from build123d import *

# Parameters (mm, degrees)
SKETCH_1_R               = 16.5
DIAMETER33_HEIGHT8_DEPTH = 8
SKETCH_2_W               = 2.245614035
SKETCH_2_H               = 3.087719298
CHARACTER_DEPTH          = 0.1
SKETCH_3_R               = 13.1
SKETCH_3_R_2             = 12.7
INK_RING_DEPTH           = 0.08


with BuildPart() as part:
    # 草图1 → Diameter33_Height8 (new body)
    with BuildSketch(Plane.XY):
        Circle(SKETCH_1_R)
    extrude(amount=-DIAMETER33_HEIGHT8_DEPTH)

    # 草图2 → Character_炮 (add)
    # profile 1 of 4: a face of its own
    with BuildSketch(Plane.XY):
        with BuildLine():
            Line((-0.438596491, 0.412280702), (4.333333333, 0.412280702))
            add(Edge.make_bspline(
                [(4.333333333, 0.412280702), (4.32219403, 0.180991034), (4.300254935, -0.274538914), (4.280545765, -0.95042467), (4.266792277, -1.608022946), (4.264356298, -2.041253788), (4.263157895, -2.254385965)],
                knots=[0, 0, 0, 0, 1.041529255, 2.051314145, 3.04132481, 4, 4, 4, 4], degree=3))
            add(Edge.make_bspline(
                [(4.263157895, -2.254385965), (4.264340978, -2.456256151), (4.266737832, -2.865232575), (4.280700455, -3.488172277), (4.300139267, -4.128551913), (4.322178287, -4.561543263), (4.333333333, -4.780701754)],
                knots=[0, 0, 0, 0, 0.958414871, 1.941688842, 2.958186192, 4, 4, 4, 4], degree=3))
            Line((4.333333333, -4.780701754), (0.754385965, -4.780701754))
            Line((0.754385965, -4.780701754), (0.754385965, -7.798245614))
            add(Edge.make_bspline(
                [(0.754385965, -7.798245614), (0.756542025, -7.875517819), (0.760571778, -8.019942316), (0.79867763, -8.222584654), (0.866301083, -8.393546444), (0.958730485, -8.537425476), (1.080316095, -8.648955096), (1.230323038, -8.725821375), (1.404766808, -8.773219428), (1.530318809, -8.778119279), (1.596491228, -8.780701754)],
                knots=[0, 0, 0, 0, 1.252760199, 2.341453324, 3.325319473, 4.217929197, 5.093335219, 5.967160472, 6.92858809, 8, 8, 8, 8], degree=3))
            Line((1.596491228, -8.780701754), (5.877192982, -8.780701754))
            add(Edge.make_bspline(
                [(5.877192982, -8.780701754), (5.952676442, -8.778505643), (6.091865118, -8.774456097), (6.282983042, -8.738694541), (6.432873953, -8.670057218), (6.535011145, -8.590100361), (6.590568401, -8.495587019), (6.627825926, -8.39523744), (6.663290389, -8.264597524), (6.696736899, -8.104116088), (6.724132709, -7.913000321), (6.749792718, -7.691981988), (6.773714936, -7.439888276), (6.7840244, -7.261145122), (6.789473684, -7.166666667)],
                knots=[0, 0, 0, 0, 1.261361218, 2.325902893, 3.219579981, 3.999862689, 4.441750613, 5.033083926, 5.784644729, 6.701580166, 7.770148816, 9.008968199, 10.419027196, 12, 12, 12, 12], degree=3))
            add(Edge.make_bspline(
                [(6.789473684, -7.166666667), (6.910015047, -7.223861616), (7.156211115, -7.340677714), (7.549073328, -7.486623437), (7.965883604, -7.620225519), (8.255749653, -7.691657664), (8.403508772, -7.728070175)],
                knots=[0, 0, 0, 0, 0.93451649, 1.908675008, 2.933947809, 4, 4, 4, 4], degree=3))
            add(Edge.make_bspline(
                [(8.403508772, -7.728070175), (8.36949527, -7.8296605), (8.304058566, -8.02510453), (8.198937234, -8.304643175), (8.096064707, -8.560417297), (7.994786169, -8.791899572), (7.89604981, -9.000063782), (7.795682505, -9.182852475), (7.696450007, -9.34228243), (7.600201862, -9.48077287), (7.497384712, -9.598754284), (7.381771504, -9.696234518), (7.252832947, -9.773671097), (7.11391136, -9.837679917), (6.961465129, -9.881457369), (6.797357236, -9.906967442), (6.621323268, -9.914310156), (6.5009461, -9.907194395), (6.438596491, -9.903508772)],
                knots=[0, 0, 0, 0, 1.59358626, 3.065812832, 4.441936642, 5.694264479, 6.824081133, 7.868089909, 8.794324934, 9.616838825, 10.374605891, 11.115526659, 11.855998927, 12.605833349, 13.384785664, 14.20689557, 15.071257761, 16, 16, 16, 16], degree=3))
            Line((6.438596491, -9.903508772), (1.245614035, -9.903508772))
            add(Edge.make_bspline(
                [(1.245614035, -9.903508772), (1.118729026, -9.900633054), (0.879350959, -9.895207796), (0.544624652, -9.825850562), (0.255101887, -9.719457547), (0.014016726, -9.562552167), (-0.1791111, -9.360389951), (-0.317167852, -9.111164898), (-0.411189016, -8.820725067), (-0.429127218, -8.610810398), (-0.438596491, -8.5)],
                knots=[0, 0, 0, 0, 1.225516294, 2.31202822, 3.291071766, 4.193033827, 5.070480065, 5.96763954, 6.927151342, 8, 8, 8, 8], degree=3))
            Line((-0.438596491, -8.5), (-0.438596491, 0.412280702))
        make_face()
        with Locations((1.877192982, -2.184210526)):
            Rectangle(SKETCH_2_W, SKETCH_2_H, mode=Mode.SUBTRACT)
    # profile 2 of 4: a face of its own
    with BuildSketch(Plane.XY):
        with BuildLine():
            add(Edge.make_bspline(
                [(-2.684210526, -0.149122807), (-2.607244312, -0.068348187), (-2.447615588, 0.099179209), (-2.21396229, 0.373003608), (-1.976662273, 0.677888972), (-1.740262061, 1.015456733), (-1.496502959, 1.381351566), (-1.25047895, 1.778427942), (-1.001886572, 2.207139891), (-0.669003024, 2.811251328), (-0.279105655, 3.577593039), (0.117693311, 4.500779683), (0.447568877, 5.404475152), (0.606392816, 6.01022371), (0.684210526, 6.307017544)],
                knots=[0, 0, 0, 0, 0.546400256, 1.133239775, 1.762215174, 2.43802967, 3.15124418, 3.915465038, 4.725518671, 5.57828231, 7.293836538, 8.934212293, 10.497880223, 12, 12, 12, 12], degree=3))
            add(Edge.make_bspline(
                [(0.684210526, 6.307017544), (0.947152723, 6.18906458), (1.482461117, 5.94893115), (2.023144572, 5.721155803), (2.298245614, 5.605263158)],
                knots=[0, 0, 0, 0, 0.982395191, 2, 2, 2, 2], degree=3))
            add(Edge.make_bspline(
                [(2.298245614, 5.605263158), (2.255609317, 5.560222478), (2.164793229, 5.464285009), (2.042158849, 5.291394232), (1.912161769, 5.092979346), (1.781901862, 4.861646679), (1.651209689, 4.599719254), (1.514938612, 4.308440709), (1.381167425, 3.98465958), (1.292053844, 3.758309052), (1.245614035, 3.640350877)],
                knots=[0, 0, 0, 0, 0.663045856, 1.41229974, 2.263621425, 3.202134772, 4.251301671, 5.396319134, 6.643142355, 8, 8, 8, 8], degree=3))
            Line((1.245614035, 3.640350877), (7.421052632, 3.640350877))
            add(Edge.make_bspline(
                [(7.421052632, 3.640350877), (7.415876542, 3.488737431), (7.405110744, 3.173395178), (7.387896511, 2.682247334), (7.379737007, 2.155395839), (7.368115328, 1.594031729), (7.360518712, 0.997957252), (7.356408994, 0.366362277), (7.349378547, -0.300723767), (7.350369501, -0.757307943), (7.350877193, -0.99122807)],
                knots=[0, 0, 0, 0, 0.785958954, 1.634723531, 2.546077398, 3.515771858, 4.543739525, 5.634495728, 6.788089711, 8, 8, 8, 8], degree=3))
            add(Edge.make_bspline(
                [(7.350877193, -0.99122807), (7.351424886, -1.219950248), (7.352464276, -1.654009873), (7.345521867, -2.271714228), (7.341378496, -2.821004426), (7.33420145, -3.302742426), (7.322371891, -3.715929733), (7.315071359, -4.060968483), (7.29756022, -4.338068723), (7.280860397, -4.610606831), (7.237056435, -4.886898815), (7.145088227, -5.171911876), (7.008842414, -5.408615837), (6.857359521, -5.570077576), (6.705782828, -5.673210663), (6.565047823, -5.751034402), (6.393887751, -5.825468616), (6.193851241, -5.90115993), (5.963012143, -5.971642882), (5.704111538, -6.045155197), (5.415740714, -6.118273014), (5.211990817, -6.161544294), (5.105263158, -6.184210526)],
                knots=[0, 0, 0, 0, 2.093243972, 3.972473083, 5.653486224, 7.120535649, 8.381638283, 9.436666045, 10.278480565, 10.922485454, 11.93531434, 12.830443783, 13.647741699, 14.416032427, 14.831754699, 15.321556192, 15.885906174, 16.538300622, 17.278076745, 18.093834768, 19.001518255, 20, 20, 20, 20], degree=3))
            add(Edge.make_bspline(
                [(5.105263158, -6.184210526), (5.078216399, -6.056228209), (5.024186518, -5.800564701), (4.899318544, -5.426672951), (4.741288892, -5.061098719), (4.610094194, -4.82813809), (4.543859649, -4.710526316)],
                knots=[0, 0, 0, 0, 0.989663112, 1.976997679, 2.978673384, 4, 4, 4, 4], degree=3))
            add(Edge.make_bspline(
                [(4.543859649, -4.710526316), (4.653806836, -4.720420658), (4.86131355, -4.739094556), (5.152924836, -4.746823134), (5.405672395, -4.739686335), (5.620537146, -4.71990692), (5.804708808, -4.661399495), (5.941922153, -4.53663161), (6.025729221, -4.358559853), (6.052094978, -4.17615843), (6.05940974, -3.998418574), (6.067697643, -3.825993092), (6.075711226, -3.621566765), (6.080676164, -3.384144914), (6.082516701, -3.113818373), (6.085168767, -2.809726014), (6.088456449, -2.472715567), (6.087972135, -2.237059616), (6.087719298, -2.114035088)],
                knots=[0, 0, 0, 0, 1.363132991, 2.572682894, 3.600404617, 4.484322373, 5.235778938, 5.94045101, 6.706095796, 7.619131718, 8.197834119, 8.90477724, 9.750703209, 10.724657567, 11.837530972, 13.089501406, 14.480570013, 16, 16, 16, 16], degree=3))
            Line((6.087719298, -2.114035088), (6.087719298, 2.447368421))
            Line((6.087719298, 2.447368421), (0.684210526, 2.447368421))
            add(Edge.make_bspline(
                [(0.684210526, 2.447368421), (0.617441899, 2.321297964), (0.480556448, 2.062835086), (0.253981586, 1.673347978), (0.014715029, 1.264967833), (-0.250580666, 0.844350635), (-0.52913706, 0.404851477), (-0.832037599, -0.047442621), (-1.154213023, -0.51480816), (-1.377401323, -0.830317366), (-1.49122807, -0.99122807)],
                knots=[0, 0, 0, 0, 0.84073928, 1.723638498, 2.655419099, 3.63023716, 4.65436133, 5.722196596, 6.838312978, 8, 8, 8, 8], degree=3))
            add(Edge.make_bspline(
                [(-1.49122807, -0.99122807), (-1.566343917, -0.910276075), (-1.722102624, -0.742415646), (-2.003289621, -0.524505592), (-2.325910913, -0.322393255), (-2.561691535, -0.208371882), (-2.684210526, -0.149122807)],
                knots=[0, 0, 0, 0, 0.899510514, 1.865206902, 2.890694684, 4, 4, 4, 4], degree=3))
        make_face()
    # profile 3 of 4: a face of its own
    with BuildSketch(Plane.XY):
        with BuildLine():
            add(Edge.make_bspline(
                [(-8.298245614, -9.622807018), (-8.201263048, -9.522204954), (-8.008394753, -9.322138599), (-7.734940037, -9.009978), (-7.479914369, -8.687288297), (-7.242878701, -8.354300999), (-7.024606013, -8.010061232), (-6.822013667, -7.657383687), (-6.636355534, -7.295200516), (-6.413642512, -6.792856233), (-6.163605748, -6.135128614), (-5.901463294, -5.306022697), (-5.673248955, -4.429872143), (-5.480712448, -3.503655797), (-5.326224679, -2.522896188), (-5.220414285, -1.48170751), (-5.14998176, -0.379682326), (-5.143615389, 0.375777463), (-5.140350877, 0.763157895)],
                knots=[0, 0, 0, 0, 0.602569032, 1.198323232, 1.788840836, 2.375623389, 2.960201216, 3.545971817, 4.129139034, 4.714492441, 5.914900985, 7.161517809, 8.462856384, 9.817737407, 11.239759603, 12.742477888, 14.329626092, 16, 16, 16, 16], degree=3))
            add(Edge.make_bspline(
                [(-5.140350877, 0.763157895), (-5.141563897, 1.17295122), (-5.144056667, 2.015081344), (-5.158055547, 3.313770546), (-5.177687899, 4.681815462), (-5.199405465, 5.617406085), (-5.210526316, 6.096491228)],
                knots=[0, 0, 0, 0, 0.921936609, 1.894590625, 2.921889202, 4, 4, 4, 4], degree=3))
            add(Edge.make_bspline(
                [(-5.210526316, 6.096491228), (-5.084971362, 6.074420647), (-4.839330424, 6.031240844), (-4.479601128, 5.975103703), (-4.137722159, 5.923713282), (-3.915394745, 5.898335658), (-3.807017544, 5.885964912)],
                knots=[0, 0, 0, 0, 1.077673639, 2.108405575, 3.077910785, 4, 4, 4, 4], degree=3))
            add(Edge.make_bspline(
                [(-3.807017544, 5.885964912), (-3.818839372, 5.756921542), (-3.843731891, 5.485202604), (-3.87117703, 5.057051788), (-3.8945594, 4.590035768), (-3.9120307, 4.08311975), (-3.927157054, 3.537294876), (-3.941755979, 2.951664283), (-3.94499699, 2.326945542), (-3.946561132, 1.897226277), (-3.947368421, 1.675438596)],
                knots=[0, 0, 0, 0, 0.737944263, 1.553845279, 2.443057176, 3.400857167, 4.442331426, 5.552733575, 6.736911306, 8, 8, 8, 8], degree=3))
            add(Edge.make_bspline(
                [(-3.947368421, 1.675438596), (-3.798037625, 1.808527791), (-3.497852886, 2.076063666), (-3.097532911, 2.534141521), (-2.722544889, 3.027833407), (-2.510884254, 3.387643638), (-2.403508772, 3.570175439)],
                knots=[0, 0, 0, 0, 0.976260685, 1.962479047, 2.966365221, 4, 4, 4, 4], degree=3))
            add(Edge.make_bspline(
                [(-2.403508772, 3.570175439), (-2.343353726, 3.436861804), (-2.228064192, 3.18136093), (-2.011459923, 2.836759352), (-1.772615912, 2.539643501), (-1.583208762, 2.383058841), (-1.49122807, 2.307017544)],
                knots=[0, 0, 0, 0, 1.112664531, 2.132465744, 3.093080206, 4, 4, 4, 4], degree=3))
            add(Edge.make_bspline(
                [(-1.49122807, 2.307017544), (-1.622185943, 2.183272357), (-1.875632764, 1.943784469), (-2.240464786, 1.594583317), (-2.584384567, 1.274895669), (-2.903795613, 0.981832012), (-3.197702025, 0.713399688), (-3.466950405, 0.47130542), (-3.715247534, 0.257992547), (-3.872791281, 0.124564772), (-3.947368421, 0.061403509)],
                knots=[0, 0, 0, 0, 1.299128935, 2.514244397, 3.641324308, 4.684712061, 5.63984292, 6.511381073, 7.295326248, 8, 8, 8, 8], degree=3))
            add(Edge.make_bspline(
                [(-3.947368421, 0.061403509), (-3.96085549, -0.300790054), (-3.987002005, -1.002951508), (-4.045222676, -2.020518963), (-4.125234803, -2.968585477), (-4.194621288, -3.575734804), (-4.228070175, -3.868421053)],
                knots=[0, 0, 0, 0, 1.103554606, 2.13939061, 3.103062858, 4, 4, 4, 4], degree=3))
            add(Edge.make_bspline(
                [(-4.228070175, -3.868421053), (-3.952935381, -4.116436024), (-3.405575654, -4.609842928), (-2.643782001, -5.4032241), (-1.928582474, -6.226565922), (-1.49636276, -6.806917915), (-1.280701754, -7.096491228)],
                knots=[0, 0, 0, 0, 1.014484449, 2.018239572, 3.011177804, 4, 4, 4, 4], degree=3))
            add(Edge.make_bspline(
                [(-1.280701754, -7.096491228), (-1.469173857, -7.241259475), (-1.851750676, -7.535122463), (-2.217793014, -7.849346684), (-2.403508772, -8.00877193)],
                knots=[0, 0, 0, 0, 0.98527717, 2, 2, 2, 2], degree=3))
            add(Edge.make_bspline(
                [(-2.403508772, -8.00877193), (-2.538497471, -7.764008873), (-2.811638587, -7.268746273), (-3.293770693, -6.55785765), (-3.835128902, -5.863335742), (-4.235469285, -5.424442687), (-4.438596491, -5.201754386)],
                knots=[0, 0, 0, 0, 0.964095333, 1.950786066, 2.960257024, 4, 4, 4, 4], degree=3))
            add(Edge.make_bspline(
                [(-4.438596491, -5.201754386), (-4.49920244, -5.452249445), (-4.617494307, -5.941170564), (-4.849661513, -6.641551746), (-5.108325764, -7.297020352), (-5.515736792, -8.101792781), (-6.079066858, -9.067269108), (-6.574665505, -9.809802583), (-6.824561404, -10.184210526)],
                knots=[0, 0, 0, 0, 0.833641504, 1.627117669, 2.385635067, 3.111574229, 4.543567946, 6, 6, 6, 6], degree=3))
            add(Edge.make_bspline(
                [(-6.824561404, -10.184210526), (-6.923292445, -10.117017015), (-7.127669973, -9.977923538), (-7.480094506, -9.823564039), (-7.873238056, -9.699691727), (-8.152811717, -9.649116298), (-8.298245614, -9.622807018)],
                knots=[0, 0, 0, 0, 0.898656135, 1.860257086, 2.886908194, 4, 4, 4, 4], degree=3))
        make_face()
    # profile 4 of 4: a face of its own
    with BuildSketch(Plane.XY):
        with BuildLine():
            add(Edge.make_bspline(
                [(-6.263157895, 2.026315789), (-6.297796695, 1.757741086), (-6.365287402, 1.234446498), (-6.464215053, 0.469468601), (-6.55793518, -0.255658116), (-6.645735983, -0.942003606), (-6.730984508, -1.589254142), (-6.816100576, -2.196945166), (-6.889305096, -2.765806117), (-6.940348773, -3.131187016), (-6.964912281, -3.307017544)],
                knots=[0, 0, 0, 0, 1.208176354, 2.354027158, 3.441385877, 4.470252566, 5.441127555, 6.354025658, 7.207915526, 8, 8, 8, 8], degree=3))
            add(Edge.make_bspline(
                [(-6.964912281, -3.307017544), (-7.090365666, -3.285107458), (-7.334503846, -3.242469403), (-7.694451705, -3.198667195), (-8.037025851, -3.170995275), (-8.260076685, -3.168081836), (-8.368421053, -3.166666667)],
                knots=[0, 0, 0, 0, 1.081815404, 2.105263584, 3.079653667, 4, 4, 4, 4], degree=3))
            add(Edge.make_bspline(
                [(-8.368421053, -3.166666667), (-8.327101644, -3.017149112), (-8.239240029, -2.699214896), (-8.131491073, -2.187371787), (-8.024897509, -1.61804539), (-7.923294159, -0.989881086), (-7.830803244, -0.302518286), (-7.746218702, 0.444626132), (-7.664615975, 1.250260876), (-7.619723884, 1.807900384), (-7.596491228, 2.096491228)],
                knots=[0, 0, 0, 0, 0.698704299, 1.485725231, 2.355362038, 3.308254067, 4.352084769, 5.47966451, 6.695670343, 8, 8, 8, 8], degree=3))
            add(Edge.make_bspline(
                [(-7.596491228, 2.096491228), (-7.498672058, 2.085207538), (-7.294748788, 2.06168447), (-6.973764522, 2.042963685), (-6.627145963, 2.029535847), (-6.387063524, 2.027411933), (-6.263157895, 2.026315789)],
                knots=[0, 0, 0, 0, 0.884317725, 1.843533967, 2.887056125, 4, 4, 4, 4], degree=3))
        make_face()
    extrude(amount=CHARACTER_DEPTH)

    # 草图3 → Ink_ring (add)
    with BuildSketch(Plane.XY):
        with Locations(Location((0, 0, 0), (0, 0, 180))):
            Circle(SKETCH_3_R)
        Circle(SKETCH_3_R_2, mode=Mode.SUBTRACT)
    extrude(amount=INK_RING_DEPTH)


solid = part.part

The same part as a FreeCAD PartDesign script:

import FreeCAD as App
import Part
import Sketcher
from FreeCAD import Vector


def add_polygon(sketch, points):
    """Adds a closed chain of lines whose ends are joined by coincident constraints."""
    first, n = sketch.GeometryCount, len(points)
    for a, b in zip(points, points[1:] + points[:1]):
        sketch.addGeometry(Part.LineSegment(App.Vector(*a, 0), App.Vector(*b, 0)), False)
    for i in range(n):
        sketch.addConstraint(Sketcher.Constraint("Coincident", first + i, 2, first + (i + 1) % n, 1))

doc = App.newDocument("Part")
body = doc.addObject("PartDesign::Body", "Body")

sketch1 = body.newObject("Sketcher::SketchObject", "Sketch")
sketch1.AttachmentSupport = (doc.getObject("XY_Plane"), [""])
sketch1.MapMode = "FlatFace"
sketch1.addGeometry(Part.Circle(Vector(0, 0, 0), Vector(0, 0, 1), 16), False)
sketch1.addConstraint([
    Sketcher.Constraint("Coincident", 0, 3, -1, 1),
    Sketcher.Constraint("Diameter", 0, 33.0),
])
pad1 = body.newObject("PartDesign::Pad", "Pad")
pad1.Profile = sketch1
pad1.Length = 8
pad1.Reversed = True

sketch2 = body.newObject("Sketcher::SketchObject", "Sketch001")
sketch2.AttachmentSupport = (doc.getObject("XY_Plane"), [""])
sketch2.MapMode = "FlatFace"
sketch2.addGeometry(Part.LineSegment(Vector(4.333333, 0.412281, 0), Vector(-0.438596, 0.412281, 0)), False)
sketch2.addGeometry(Part.LineSegment(Vector(-0.438596, 0.412281, 0), Vector(-0.438596, -8.5, 0)), False)
sketch2.addGeometry(Part.BSplineCurve([Vector(1.245614, -9.903509, 0), Vector(1.118729, -9.900633, 0), Vector(0.879351, -9.895208, 0), Vector(0.544625, -9.825851, 0), Vector(0.255102, -9.719458, 0), Vector(0.014017, -9.562552, 0), Vector(-0.179111, -9.36039, 0), Vector(-0.317168, -9.111165, 0), Vector(-0.411189, -8.820725, 0), Vector(-0.429127, -8.61081, 0), Vector(-0.438596, -8.5, 0)], [4, 1, 1, 1, 1, 1, 1, 1, 4], [0, 1.225516294, 2.31202822, 3.291071766, 4.193033827, 5.070480065, 5.96763954, 6.927151342, 8], False, 3, [1, 1, 1, 1, 1, 1, 1, 1, 1, 1, 1], False), False)
sketch2.addGeometry(Part.LineSegment(Vector(1.245614, -9.903509, 0), Vector(6.438596, -9.903509, 0)), False)
sketch2.addGeometry(Part.BSplineCurve([Vector(8.403509, -7.72807, 0), Vector(8.369495, -7.829661, 0), Vector(8.304059, -8.025105, 0), Vector(8.198937, -8.304643, 0), Vector(8.096065, -8.560417, 0), Vector(7.994786, -8.7919, 0), Vector(7.89605, -9.000064, 0), Vector(7.795683, -9.182852, 0), Vector(7.69645, -9.342282, 0), Vector(7.600202, -9.480773, 0), Vector(7.497385, -9.598754, 0), Vector(7.381772, -9.696235, 0), Vector(7.252833, -9.773671, 0), Vector(7.113911, -9.83768, 0), Vector(6.961465, -9.881457, 0), Vector(6.797357, -9.906967, 0), Vector(6.621323, -9.91431, 0), Vector(6.500946, -9.907194, 0), Vector(6.438596, -9.903509, 0)], [4, 1, 1, 1, 1, 1, 1, 1, 1, 1, 1, 1, 1, 1, 1, 1, 4], [0, 1.59358626, 3.065812832, 4.441936642, 5.694264479, 6.824081133, 7.868089909, 8.794324934, 9.616838825, 10.374605891, 11.115526659, 11.855998927, 12.605833349, 13.384785664, 14.20689557, 15.071257761, 16], False, 3, [1, 1, 1, 1, 1, 1, 1, 1, 1, 1, 1, 1, 1, 1, 1, 1, 1, 1, 1], False), False)
sketch2.addGeometry(Part.BSplineCurve([Vector(6.789474, -7.166667, 0), Vector(6.910015, -7.223862, 0), Vector(7.156211, -7.340678, 0), Vector(7.549073, -7.486623, 0), Vector(7.965884, -7.620226, 0), Vector(8.25575, -7.691658, 0), Vector(8.403509, -7.72807, 0)], [4, 1, 1, 1, 4], [0, 0.93451649, 1.908675008, 2.933947809, 4], False, 3, [1, 1, 1, 1, 1, 1, 1], False), False)
sketch2.addGeometry(Part.BSplineCurve([Vector(5.877193, -8.780702, 0), Vector(5.952676, -8.778506, 0), Vector(6.091865, -8.774456, 0), Vector(6.282983, -8.738695, 0), Vector(6.432874, -8.670057, 0), Vector(6.535011, -8.5901, 0), Vector(6.590568, -8.495587, 0), Vector(6.627826, -8.395237, 0), Vector(6.66329, -8.264598, 0), Vector(6.696737, -8.104116, 0), Vector(6.724133, -7.913, 0), Vector(6.749793, -7.691982, 0), Vector(6.773715, -7.439888, 0), Vector(6.784024, -7.261145, 0), Vector(6.789474, -7.166667, 0)], [4, 1, 1, 1, 1, 1, 1, 1, 1, 1, 1, 1, 4], [0, 1.261361218, 2.325902893, 3.219579981, 3.999862689, 4.441750613, 5.033083926, 5.784644729, 6.701580166, 7.770148816, 9.008968199, 10.419027196, 12], False, 3, [1, 1, 1, 1, 1, 1, 1, 1, 1, 1, 1, 1, 1, 1, 1], False), False)
sketch2.addGeometry(Part.LineSegment(Vector(5.877193, -8.780702, 0), Vector(1.596491, -8.780702, 0)), False)
sketch2.addGeometry(Part.BSplineCurve([Vector(0.754386, -7.798246, 0), Vector(0.756542, -7.875518, 0), Vector(0.760572, -8.019942, 0), Vector(0.798678, -8.222585, 0), Vector(0.866301, -8.393546, 0), Vector(0.95873, -8.537425, 0), Vector(1.080316, -8.648955, 0), Vector(1.230323, -8.725821, 0), Vector(1.404767, -8.773219, 0), Vector(1.530319, -8.778119, 0), Vector(1.596491, -8.780702, 0)], [4, 1, 1, 1, 1, 1, 1, 1, 4], [0, 1.252760199, 2.341453324, 3.325319473, 4.217929197, 5.093335219, 5.967160472, 6.92858809, 8], False, 3, [1, 1, 1, 1, 1, 1, 1, 1, 1, 1, 1], False), False)
sketch2.addGeometry(Part.LineSegment(Vector(0.754386, -7.798246, 0), Vector(0.754386, -4.780702, 0)), False)
sketch2.addGeometry(Part.LineSegment(Vector(0.754386, -4.780702, 0), Vector(4.333333, -4.780702, 0)), False)
sketch2.addGeometry(Part.BSplineCurve([Vector(4.263158, -2.254386, 0), Vector(4.264341, -2.456256, 0), Vector(4.266738, -2.865233, 0), Vector(4.2807, -3.488172, 0), Vector(4.300139, -4.128552, 0), Vector(4.322178, -4.561543, 0), Vector(4.333333, -4.780702, 0)], [4, 1, 1, 1, 4], [0, 0.958414871, 1.941688842, 2.958186192, 4], False, 3, [1, 1, 1, 1, 1, 1, 1], False), False)
sketch2.addGeometry(Part.BSplineCurve([Vector(4.333333, 0.412281, 0), Vector(4.322194, 0.180991, 0), Vector(4.300255, -0.274539, 0), Vector(4.280546, -0.950425, 0), Vector(4.266792, -1.608023, 0), Vector(4.264356, -2.041254, 0), Vector(4.263158, -2.254386, 0)], [4, 1, 1, 1, 4], [0, 1.041529255, 2.051314145, 3.04132481, 4], False, 3, [1, 1, 1, 1, 1, 1, 1], False), False)
add_polygon(sketch2, [(0.754386, -3.72807), (0.754386, -0.640351), (3, -0.640351), (3, -3.72807)])
sketch2.addGeometry(Part.BSplineCurve([Vector(-2.684211, -0.149123, 0), Vector(-2.607244, -0.068348, 0), Vector(-2.447616, 0.099179, 0), Vector(-2.213962, 0.373004, 0), Vector(-1.976662, 0.677889, 0), Vector(-1.740262, 1.015457, 0), Vector(-1.496503, 1.381352, 0), Vector(-1.250479, 1.778428, 0), Vector(-1.001887, 2.20714, 0), Vector(-0.669003, 2.811251, 0), Vector(-0.279106, 3.577593, 0), Vector(0.117693, 4.50078, 0), Vector(0.447569, 5.404475, 0), Vector(0.606393, 6.010224, 0), Vector(0.684211, 6.307018, 0)], [4, 1, 1, 1, 1, 1, 1, 1, 1, 1, 1, 1, 4], [0, 0.546400256, 1.133239775, 1.762215174, 2.43802967, 3.15124418, 3.915465038, 4.725518671, 5.57828231, 7.293836538, 8.934212293, 10.497880223, 12], False, 3, [1, 1, 1, 1, 1, 1, 1, 1, 1, 1, 1, 1, 1, 1, 1], False), False)
sketch2.addGeometry(Part.BSplineCurve([Vector(-1.491228, -0.991228, 0), Vector(-1.566344, -0.910276, 0), Vector(-1.722103, -0.742416, 0), Vector(-2.00329, -0.524506, 0), Vector(-2.325911, -0.322393, 0), Vector(-2.561692, -0.208372, 0), Vector(-2.684211, -0.149123, 0)], [4, 1, 1, 1, 4], [0, 0.899510514, 1.865206902, 2.890694684, 4], False, 3, [1, 1, 1, 1, 1, 1, 1], False), False)
sketch2.addGeometry(Part.BSplineCurve([Vector(0.684211, 2.447368, 0), Vector(0.617442, 2.321298, 0), Vector(0.480556, 2.062835, 0), Vector(0.253982, 1.673348, 0), Vector(0.014715, 1.264968, 0), Vector(-0.250581, 0.844351, 0), Vector(-0.529137, 0.404851, 0), Vector(-0.832038, -0.047443, 0), Vector(-1.154213, -0.514808, 0), Vector(-1.377401, -0.830317, 0), Vector(-1.491228, -0.991228, 0)], [4, 1, 1, 1, 1, 1, 1, 1, 4], [0, 0.84073928, 1.723638498, 2.655419099, 3.63023716, 4.65436133, 5.722196596, 6.838312978, 8], False, 3, [1, 1, 1, 1, 1, 1, 1, 1, 1, 1, 1], False), False)
sketch2.addGeometry(Part.LineSegment(Vector(0.684211, 2.447368, 0), Vector(6.087719, 2.447368, 0)), False)
sketch2.addGeometry(Part.LineSegment(Vector(6.087719, 2.447368, 0), Vector(6.087719, -2.114035, 0)), False)
sketch2.addGeometry(Part.BSplineCurve([Vector(4.54386, -4.710526, 0), Vector(4.653807, -4.720421, 0), Vector(4.861314, -4.739095, 0), Vector(5.152925, -4.746823, 0), Vector(5.405672, -4.739686, 0), Vector(5.620537, -4.719907, 0), Vector(5.804709, -4.661399, 0), Vector(5.941922, -4.536632, 0), Vector(6.025729, -4.35856, 0), Vector(6.052095, -4.176158, 0), Vector(6.05941, -3.998419, 0), Vector(6.067698, -3.825993, 0), Vector(6.075711, -3.621567, 0), Vector(6.080676, -3.384145, 0), Vector(6.082517, -3.113818, 0), Vector(6.085169, -2.809726, 0), Vector(6.088456, -2.472716, 0), Vector(6.087972, -2.23706, 0), Vector(6.087719, -2.114035, 0)], [4, 1, 1, 1, 1, 1, 1, 1, 1, 1, 1, 1, 1, 1, 1, 1, 4], [0, 1.363132991, 2.572682894, 3.600404617, 4.484322373, 5.235778938, 5.94045101, 6.706095796, 7.619131718, 8.197834119, 8.90477724, 9.750703209, 10.724657567, 11.837530972, 13.089501406, 14.480570013, 16], False, 3, [1, 1, 1, 1, 1, 1, 1, 1, 1, 1, 1, 1, 1, 1, 1, 1, 1, 1, 1], False), False)
sketch2.addGeometry(Part.BSplineCurve([Vector(5.105263, -6.184211, 0), Vector(5.078216, -6.056228, 0), Vector(5.024187, -5.800565, 0), Vector(4.899319, -5.426673, 0), Vector(4.741289, -5.061099, 0), Vector(4.610094, -4.828138, 0), Vector(4.54386, -4.710526, 0)], [4, 1, 1, 1, 4], [0, 0.989663112, 1.976997679, 2.978673384, 4], False, 3, [1, 1, 1, 1, 1, 1, 1], False), False)
sketch2.addGeometry(Part.BSplineCurve([Vector(7.350877, -0.991228, 0), Vector(7.351425, -1.21995, 0), Vector(7.352464, -1.65401, 0), Vector(7.345522, -2.271714, 0), Vector(7.341378, -2.821004, 0), Vector(7.334201, -3.302742, 0), Vector(7.322372, -3.71593, 0), Vector(7.315071, -4.060968, 0), Vector(7.29756, -4.338069, 0), Vector(7.28086, -4.610607, 0), Vector(7.237056, -4.886899, 0), Vector(7.145088, -5.171912, 0), Vector(7.008842, -5.408616, 0), Vector(6.85736, -5.570078, 0), Vector(6.705783, -5.673211, 0), Vector(6.565048, -5.751034, 0), Vector(6.393888, -5.825469, 0), Vector(6.193851, -5.90116, 0), Vector(5.963012, -5.971643, 0), Vector(5.704112, -6.045155, 0), Vector(5.415741, -6.118273, 0), Vector(5.211991, -6.161544, 0), Vector(5.105263, -6.184211, 0)], [4, 1, 1, 1, 1, 1, 1, 1, 1, 1, 1, 1, 1, 1, 1, 1, 1, 1, 1, 1, 4], [0, 2.093243972, 3.972473083, 5.653486224, 7.120535649, 8.381638283, 9.436666045, 10.278480565, 10.922485454, 11.93531434, 12.830443783, 13.647741699, 14.416032427, 14.831754699, 15.321556192, 15.885906174, 16.538300622, 17.278076745, 18.093834768, 19.001518255, 20], False, 3, [1, 1, 1, 1, 1, 1, 1, 1, 1, 1, 1, 1, 1, 1, 1, 1, 1, 1, 1, 1, 1, 1, 1], False), False)
sketch2.addGeometry(Part.BSplineCurve([Vector(7.421053, 3.640351, 0), Vector(7.415877, 3.488737, 0), Vector(7.405111, 3.173395, 0), Vector(7.387897, 2.682247, 0), Vector(7.379737, 2.155396, 0), Vector(7.368115, 1.594032, 0), Vector(7.360519, 0.997957, 0), Vector(7.356409, 0.366362, 0), Vector(7.349379, -0.300724, 0), Vector(7.35037, -0.757308, 0), Vector(7.350877, -0.991228, 0)], [4, 1, 1, 1, 1, 1, 1, 1, 4], [0, 0.785958954, 1.634723531, 2.546077398, 3.515771858, 4.543739525, 5.634495728, 6.788089711, 8], False, 3, [1, 1, 1, 1, 1, 1, 1, 1, 1, 1, 1], False), False)
sketch2.addGeometry(Part.LineSegment(Vector(7.421053, 3.640351, 0), Vector(1.245614, 3.640351, 0)), False)
sketch2.addGeometry(Part.BSplineCurve([Vector(2.298246, 5.605263, 0), Vector(2.255609, 5.560222, 0), Vector(2.164793, 5.464285, 0), Vector(2.042159, 5.291394, 0), Vector(1.912162, 5.092979, 0), Vector(1.781902, 4.861647, 0), Vector(1.65121, 4.599719, 0), Vector(1.514939, 4.308441, 0), Vector(1.381167, 3.98466, 0), Vector(1.292054, 3.758309, 0), Vector(1.245614, 3.640351, 0)], [4, 1, 1, 1, 1, 1, 1, 1, 4], [0, 0.663045856, 1.41229974, 2.263621425, 3.202134772, 4.251301671, 5.396319134, 6.643142355, 8], False, 3, [1, 1, 1, 1, 1, 1, 1, 1, 1, 1, 1], False), False)
sketch2.addGeometry(Part.BSplineCurve([Vector(0.684211, 6.307018, 0), Vector(0.947153, 6.189065, 0), Vector(1.482461, 5.948931, 0), Vector(2.023145, 5.721156, 0), Vector(2.298246, 5.605263, 0)], [4, 1, 4], [0, 0.982395191, 2], False, 3, [1, 1, 1, 1, 1], False), False)
sketch2.addGeometry(Part.BSplineCurve([Vector(-8.298246, -9.622807, 0), Vector(-8.201263, -9.522205, 0), Vector(-8.008395, -9.322139, 0), Vector(-7.73494, -9.009978, 0), Vector(-7.479914, -8.687288, 0), Vector(-7.242879, -8.354301, 0), Vector(-7.024606, -8.010061, 0), Vector(-6.822014, -7.657384, 0), Vector(-6.636356, -7.295201, 0), Vector(-6.413643, -6.792856, 0), Vector(-6.163606, -6.135129, 0), Vector(-5.901463, -5.306023, 0), Vector(-5.673249, -4.429872, 0), Vector(-5.480712, -3.503656, 0), Vector(-5.326225, -2.522896, 0), Vector(-5.220414, -1.481708, 0), Vector(-5.149982, -0.379682, 0), Vector(-5.143615, 0.375777, 0), Vector(-5.140351, 0.763158, 0)], [4, 1, 1, 1, 1, 1, 1, 1, 1, 1, 1, 1, 1, 1, 1, 1, 4], [0, 0.602569032, 1.198323232, 1.788840836, 2.375623389, 2.960201216, 3.545971817, 4.129139034, 4.714492441, 5.914900985, 7.161517809, 8.462856384, 9.817737407, 11.239759603, 12.742477888, 14.329626092, 16], False, 3, [1, 1, 1, 1, 1, 1, 1, 1, 1, 1, 1, 1, 1, 1, 1, 1, 1, 1, 1], False), False)
sketch2.addGeometry(Part.BSplineCurve([Vector(-6.824561, -10.184211, 0), Vector(-6.923292, -10.117017, 0), Vector(-7.12767, -9.977924, 0), Vector(-7.480095, -9.823564, 0), Vector(-7.873238, -9.699692, 0), Vector(-8.152812, -9.649116, 0), Vector(-8.298246, -9.622807, 0)], [4, 1, 1, 1, 4], [0, 0.898656135, 1.860257086, 2.886908194, 4], False, 3, [1, 1, 1, 1, 1, 1, 1], False), False)
sketch2.addGeometry(Part.BSplineCurve([Vector(-4.438596, -5.201754, 0), Vector(-4.499202, -5.452249, 0), Vector(-4.617494, -5.941171, 0), Vector(-4.849662, -6.641552, 0), Vector(-5.108326, -7.29702, 0), Vector(-5.515737, -8.101793, 0), Vector(-6.079067, -9.067269, 0), Vector(-6.574666, -9.809803, 0), Vector(-6.824561, -10.184211, 0)], [4, 1, 1, 1, 1, 1, 4], [0, 0.833641504, 1.627117669, 2.385635067, 3.111574229, 4.543567946, 6], False, 3, [1, 1, 1, 1, 1, 1, 1, 1, 1], False), False)
sketch2.addGeometry(Part.BSplineCurve([Vector(-2.403509, -8.008772, 0), Vector(-2.538497, -7.764009, 0), Vector(-2.811639, -7.268746, 0), Vector(-3.293771, -6.557858, 0), Vector(-3.835129, -5.863336, 0), Vector(-4.235469, -5.424443, 0), Vector(-4.438596, -5.201754, 0)], [4, 1, 1, 1, 4], [0, 0.964095333, 1.950786066, 2.960257024, 4], False, 3, [1, 1, 1, 1, 1, 1, 1], False), False)
sketch2.addGeometry(Part.BSplineCurve([Vector(-1.280702, -7.096491, 0), Vector(-1.469174, -7.241259, 0), Vector(-1.851751, -7.535122, 0), Vector(-2.217793, -7.849347, 0), Vector(-2.403509, -8.008772, 0)], [4, 1, 4], [0, 0.98527717, 2], False, 3, [1, 1, 1, 1, 1], False), False)
sketch2.addGeometry(Part.BSplineCurve([Vector(-4.22807, -3.868421, 0), Vector(-3.952935, -4.116436, 0), Vector(-3.405576, -4.609843, 0), Vector(-2.643782, -5.403224, 0), Vector(-1.928582, -6.226566, 0), Vector(-1.496363, -6.806918, 0), Vector(-1.280702, -7.096491, 0)], [4, 1, 1, 1, 4], [0, 1.014484449, 2.018239572, 3.011177804, 4], False, 3, [1, 1, 1, 1, 1, 1, 1], False), False)
sketch2.addGeometry(Part.BSplineCurve([Vector(-3.947368, 0.061404, 0), Vector(-3.960855, -0.30079, 0), Vector(-3.987002, -1.002952, 0), Vector(-4.045223, -2.020519, 0), Vector(-4.125235, -2.968585, 0), Vector(-4.194621, -3.575735, 0), Vector(-4.22807, -3.868421, 0)], [4, 1, 1, 1, 4], [0, 1.103554606, 2.13939061, 3.103062858, 4], False, 3, [1, 1, 1, 1, 1, 1, 1], False), False)
sketch2.addGeometry(Part.BSplineCurve([Vector(-1.491228, 2.307018, 0), Vector(-1.622186, 2.183272, 0), Vector(-1.875633, 1.943784, 0), Vector(-2.240465, 1.594583, 0), Vector(-2.584385, 1.274896, 0), Vector(-2.903796, 0.981832, 0), Vector(-3.197702, 0.7134, 0), Vector(-3.46695, 0.471305, 0), Vector(-3.715248, 0.257993, 0), Vector(-3.872791, 0.124565, 0), Vector(-3.947368, 0.061404, 0)], [4, 1, 1, 1, 1, 1, 1, 1, 4], [0, 1.299128935, 2.514244397, 3.641324308, 4.684712061, 5.63984292, 6.511381073, 7.295326248, 8], False, 3, [1, 1, 1, 1, 1, 1, 1, 1, 1, 1, 1], False), False)
sketch2.addGeometry(Part.BSplineCurve([Vector(-2.403509, 3.570175, 0), Vector(-2.343354, 3.436862, 0), Vector(-2.228064, 3.181361, 0), Vector(-2.01146, 2.836759, 0), Vector(-1.772616, 2.539644, 0), Vector(-1.583209, 2.383059, 0), Vector(-1.491228, 2.307018, 0)], [4, 1, 1, 1, 4], [0, 1.112664531, 2.132465744, 3.093080206, 4], False, 3, [1, 1, 1, 1, 1, 1, 1], False), False)
sketch2.addGeometry(Part.BSplineCurve([Vector(-3.947368, 1.675439, 0), Vector(-3.798038, 1.808528, 0), Vector(-3.497853, 2.076064, 0), Vector(-3.097533, 2.534142, 0), Vector(-2.722545, 3.027833, 0), Vector(-2.510884, 3.387644, 0), Vector(-2.403509, 3.570175, 0)], [4, 1, 1, 1, 4], [0, 0.976260685, 1.962479047, 2.966365221, 4], False, 3, [1, 1, 1, 1, 1, 1, 1], False), False)
sketch2.addGeometry(Part.BSplineCurve([Vector(-3.807018, 5.885965, 0), Vector(-3.818839, 5.756922, 0), Vector(-3.843732, 5.485203, 0), Vector(-3.871177, 5.057052, 0), Vector(-3.894559, 4.590036, 0), Vector(-3.912031, 4.08312, 0), Vector(-3.927157, 3.537295, 0), Vector(-3.941756, 2.951664, 0), Vector(-3.944997, 2.326946, 0), Vector(-3.946561, 1.897226, 0), Vector(-3.947368, 1.675439, 0)], [4, 1, 1, 1, 1, 1, 1, 1, 4], [0, 0.737944263, 1.553845279, 2.443057176, 3.400857167, 4.442331426, 5.552733575, 6.736911306, 8], False, 3, [1, 1, 1, 1, 1, 1, 1, 1, 1, 1, 1], False), False)
sketch2.addGeometry(Part.BSplineCurve([Vector(-5.210526, 6.096491, 0), Vector(-5.084971, 6.074421, 0), Vector(-4.83933, 6.031241, 0), Vector(-4.479601, 5.975104, 0), Vector(-4.137722, 5.923713, 0), Vector(-3.915395, 5.898336, 0), Vector(-3.807018, 5.885965, 0)], [4, 1, 1, 1, 4], [0, 1.077673639, 2.108405575, 3.077910785, 4], False, 3, [1, 1, 1, 1, 1, 1, 1], False), False)
sketch2.addGeometry(Part.BSplineCurve([Vector(-5.140351, 0.763158, 0), Vector(-5.141564, 1.172951, 0), Vector(-5.144057, 2.015081, 0), Vector(-5.158056, 3.313771, 0), Vector(-5.177688, 4.681815, 0), Vector(-5.199405, 5.617406, 0), Vector(-5.210526, 6.096491, 0)], [4, 1, 1, 1, 4], [0, 0.921936609, 1.894590625, 2.921889202, 4], False, 3, [1, 1, 1, 1, 1, 1, 1], False), False)
sketch2.addGeometry(Part.BSplineCurve([Vector(-6.263158, 2.026316, 0), Vector(-6.297797, 1.757741, 0), Vector(-6.365287, 1.234446, 0), Vector(-6.464215, 0.469469, 0), Vector(-6.557935, -0.255658, 0), Vector(-6.645736, -0.942004, 0), Vector(-6.730985, -1.589254, 0), Vector(-6.816101, -2.196945, 0), Vector(-6.889305, -2.765806, 0), Vector(-6.940349, -3.131187, 0), Vector(-6.964912, -3.307018, 0)], [4, 1, 1, 1, 1, 1, 1, 1, 4], [0, 1.208176354, 2.354027158, 3.441385877, 4.470252566, 5.441127555, 6.354025658, 7.207915526, 8], False, 3, [1, 1, 1, 1, 1, 1, 1, 1, 1, 1, 1], False), False)
sketch2.addGeometry(Part.BSplineCurve([Vector(-7.596491, 2.096491, 0), Vector(-7.498672, 2.085208, 0), Vector(-7.294749, 2.061684, 0), Vector(-6.973765, 2.042964, 0), Vector(-6.627146, 2.029536, 0), Vector(-6.387064, 2.027412, 0), Vector(-6.263158, 2.026316, 0)], [4, 1, 1, 1, 4], [0, 0.884317725, 1.843533967, 2.887056125, 4], False, 3, [1, 1, 1, 1, 1, 1, 1], False), False)
sketch2.addGeometry(Part.BSplineCurve([Vector(-8.368421, -3.166667, 0), Vector(-8.327102, -3.017149, 0), Vector(-8.23924, -2.699215, 0), Vector(-8.131491, -2.187372, 0), Vector(-8.024898, -1.618045, 0), Vector(-7.923294, -0.989881, 0), Vector(-7.830803, -0.302518, 0), Vector(-7.746219, 0.444626, 0), Vector(-7.664616, 1.250261, 0), Vector(-7.619724, 1.8079, 0), Vector(-7.596491, 2.096491, 0)], [4, 1, 1, 1, 1, 1, 1, 1, 4], [0, 0.698704299, 1.485725231, 2.355362038, 3.308254067, 4.352084769, 5.47966451, 6.695670343, 8], False, 3, [1, 1, 1, 1, 1, 1, 1, 1, 1, 1, 1], False), False)
sketch2.addGeometry(Part.BSplineCurve([Vector(-6.964912, -3.307018, 0), Vector(-7.090366, -3.285107, 0), Vector(-7.334504, -3.242469, 0), Vector(-7.694452, -3.198667, 0), Vector(-8.037026, -3.170995, 0), Vector(-8.260077, -3.168082, 0), Vector(-8.368421, -3.166667, 0)], [4, 1, 1, 1, 4], [0, 1.081815404, 2.105263584, 3.079653667, 4], False, 3, [1, 1, 1, 1, 1, 1, 1], False), False)
sketch2.addConstraint([
    Sketcher.Constraint("Block", 2),
    Sketcher.Constraint("Block", 4),
    Sketcher.Constraint("Block", 5),
    Sketcher.Constraint("Block", 6),
    Sketcher.Constraint("Block", 8),
    Sketcher.Constraint("Block", 11),
    Sketcher.Constraint("Block", 12),
    Sketcher.Constraint("Block", 17),
    Sketcher.Constraint("Block", 18),
    Sketcher.Constraint("Block", 19),
    Sketcher.Constraint("Block", 22),
    Sketcher.Constraint("Block", 23),
    Sketcher.Constraint("Block", 24),
    Sketcher.Constraint("Block", 25),
    Sketcher.Constraint("Block", 27),
    Sketcher.Constraint("Block", 28),
    Sketcher.Constraint("Block", 29),
    Sketcher.Constraint("Block", 30),
    Sketcher.Constraint("Block", 31),
    Sketcher.Constraint("Block", 32),
    Sketcher.Constraint("Block", 33),
    Sketcher.Constraint("Block", 34),
    Sketcher.Constraint("Block", 35),
    Sketcher.Constraint("Block", 36),
    Sketcher.Constraint("Block", 37),
    Sketcher.Constraint("Block", 38),
    Sketcher.Constraint("Block", 39),
    Sketcher.Constraint("Block", 40),
    Sketcher.Constraint("Block", 41),
    Sketcher.Constraint("Block", 42),
    Sketcher.Constraint("Block", 43),
    Sketcher.Constraint("Block", 44),
    Sketcher.Constraint("Block", 45),
    Sketcher.Constraint("Coincident", 0, 2, 1, 1),
    Sketcher.Constraint("Coincident", 1, 2, 2, 2),
    Sketcher.Constraint("Coincident", 2, 1, 3, 1),
    Sketcher.Constraint("Coincident", 3, 2, 4, 2),
    Sketcher.Constraint("Coincident", 6, 1, 7, 1),
    Sketcher.Constraint("Coincident", 7, 2, 8, 2),
    Sketcher.Constraint("Coincident", 8, 1, 9, 1),
    Sketcher.Constraint("Coincident", 9, 2, 10, 1),
    Sketcher.Constraint("Coincident", 10, 2, 11, 2),
    Sketcher.Constraint("Coincident", 12, 1, 0, 1),
    Sketcher.Constraint("Coincident", 19, 1, 20, 1),
    Sketcher.Constraint("Coincident", 20, 2, 21, 1),
    Sketcher.Constraint("Coincident", 21, 2, 22, 2),
    Sketcher.Constraint("Coincident", 25, 1, 26, 1),
    Sketcher.Constraint("Coincident", 26, 2, 27, 2),
    Sketcher.Constraint("Horizontal", 0),
    Sketcher.Constraint("Vertical", 1),
    Sketcher.Constraint("Vertical", 9),
    Sketcher.Constraint("Horizontal", 10),
    Sketcher.Constraint("Vertical", 13),
    Sketcher.Constraint("Horizontal", 14),
    Sketcher.Constraint("Vertical", 15),
    Sketcher.Constraint("Horizontal", 16),
    Sketcher.Constraint("Horizontal", 20),
    Sketcher.Constraint("Vertical", 21),
    Sketcher.Constraint("Vertical", 9, 2, 13, 2),
    Sketcher.Constraint("DistanceX", -1, 1, 14, 2, 3.0),
    Sketcher.Constraint("DistanceY", 13, 1, 13, 2, 3.087719),
    Sketcher.Constraint("DistanceY", 13, 2, 26, 2, 4.280702),
])
pad2 = body.newObject("PartDesign::Pad", "Pad001")
pad2.Profile = sketch2
pad2.Length = 0.1

sketch3 = body.newObject("Sketcher::SketchObject", "Sketch002")
sketch3.AttachmentSupport = (doc.getObject("XY_Plane"), [""])
sketch3.MapMode = "FlatFace"
sketch3.addGeometry([
    Part.Circle(Vector(0, 0, 0), Vector(0, 0, 1), 13),
    Part.Circle(Vector(0, 0, 0), Vector(0, 0, 1), 13),
], False)
sketch3.addConstraint([
    Sketcher.Constraint("Coincident", 0, 3, -1, 1),
    Sketcher.Constraint("Coincident", 1, 3, -1, 1),
    Sketcher.Constraint("Diameter", 0, 26.2),
    Sketcher.Constraint("Diameter", 1, 25.4),
])
pad3 = body.newObject("PartDesign::Pad", "Pad002")
pad3.Profile = sketch3
pad3.Length = 0.08

doc.recompute()
